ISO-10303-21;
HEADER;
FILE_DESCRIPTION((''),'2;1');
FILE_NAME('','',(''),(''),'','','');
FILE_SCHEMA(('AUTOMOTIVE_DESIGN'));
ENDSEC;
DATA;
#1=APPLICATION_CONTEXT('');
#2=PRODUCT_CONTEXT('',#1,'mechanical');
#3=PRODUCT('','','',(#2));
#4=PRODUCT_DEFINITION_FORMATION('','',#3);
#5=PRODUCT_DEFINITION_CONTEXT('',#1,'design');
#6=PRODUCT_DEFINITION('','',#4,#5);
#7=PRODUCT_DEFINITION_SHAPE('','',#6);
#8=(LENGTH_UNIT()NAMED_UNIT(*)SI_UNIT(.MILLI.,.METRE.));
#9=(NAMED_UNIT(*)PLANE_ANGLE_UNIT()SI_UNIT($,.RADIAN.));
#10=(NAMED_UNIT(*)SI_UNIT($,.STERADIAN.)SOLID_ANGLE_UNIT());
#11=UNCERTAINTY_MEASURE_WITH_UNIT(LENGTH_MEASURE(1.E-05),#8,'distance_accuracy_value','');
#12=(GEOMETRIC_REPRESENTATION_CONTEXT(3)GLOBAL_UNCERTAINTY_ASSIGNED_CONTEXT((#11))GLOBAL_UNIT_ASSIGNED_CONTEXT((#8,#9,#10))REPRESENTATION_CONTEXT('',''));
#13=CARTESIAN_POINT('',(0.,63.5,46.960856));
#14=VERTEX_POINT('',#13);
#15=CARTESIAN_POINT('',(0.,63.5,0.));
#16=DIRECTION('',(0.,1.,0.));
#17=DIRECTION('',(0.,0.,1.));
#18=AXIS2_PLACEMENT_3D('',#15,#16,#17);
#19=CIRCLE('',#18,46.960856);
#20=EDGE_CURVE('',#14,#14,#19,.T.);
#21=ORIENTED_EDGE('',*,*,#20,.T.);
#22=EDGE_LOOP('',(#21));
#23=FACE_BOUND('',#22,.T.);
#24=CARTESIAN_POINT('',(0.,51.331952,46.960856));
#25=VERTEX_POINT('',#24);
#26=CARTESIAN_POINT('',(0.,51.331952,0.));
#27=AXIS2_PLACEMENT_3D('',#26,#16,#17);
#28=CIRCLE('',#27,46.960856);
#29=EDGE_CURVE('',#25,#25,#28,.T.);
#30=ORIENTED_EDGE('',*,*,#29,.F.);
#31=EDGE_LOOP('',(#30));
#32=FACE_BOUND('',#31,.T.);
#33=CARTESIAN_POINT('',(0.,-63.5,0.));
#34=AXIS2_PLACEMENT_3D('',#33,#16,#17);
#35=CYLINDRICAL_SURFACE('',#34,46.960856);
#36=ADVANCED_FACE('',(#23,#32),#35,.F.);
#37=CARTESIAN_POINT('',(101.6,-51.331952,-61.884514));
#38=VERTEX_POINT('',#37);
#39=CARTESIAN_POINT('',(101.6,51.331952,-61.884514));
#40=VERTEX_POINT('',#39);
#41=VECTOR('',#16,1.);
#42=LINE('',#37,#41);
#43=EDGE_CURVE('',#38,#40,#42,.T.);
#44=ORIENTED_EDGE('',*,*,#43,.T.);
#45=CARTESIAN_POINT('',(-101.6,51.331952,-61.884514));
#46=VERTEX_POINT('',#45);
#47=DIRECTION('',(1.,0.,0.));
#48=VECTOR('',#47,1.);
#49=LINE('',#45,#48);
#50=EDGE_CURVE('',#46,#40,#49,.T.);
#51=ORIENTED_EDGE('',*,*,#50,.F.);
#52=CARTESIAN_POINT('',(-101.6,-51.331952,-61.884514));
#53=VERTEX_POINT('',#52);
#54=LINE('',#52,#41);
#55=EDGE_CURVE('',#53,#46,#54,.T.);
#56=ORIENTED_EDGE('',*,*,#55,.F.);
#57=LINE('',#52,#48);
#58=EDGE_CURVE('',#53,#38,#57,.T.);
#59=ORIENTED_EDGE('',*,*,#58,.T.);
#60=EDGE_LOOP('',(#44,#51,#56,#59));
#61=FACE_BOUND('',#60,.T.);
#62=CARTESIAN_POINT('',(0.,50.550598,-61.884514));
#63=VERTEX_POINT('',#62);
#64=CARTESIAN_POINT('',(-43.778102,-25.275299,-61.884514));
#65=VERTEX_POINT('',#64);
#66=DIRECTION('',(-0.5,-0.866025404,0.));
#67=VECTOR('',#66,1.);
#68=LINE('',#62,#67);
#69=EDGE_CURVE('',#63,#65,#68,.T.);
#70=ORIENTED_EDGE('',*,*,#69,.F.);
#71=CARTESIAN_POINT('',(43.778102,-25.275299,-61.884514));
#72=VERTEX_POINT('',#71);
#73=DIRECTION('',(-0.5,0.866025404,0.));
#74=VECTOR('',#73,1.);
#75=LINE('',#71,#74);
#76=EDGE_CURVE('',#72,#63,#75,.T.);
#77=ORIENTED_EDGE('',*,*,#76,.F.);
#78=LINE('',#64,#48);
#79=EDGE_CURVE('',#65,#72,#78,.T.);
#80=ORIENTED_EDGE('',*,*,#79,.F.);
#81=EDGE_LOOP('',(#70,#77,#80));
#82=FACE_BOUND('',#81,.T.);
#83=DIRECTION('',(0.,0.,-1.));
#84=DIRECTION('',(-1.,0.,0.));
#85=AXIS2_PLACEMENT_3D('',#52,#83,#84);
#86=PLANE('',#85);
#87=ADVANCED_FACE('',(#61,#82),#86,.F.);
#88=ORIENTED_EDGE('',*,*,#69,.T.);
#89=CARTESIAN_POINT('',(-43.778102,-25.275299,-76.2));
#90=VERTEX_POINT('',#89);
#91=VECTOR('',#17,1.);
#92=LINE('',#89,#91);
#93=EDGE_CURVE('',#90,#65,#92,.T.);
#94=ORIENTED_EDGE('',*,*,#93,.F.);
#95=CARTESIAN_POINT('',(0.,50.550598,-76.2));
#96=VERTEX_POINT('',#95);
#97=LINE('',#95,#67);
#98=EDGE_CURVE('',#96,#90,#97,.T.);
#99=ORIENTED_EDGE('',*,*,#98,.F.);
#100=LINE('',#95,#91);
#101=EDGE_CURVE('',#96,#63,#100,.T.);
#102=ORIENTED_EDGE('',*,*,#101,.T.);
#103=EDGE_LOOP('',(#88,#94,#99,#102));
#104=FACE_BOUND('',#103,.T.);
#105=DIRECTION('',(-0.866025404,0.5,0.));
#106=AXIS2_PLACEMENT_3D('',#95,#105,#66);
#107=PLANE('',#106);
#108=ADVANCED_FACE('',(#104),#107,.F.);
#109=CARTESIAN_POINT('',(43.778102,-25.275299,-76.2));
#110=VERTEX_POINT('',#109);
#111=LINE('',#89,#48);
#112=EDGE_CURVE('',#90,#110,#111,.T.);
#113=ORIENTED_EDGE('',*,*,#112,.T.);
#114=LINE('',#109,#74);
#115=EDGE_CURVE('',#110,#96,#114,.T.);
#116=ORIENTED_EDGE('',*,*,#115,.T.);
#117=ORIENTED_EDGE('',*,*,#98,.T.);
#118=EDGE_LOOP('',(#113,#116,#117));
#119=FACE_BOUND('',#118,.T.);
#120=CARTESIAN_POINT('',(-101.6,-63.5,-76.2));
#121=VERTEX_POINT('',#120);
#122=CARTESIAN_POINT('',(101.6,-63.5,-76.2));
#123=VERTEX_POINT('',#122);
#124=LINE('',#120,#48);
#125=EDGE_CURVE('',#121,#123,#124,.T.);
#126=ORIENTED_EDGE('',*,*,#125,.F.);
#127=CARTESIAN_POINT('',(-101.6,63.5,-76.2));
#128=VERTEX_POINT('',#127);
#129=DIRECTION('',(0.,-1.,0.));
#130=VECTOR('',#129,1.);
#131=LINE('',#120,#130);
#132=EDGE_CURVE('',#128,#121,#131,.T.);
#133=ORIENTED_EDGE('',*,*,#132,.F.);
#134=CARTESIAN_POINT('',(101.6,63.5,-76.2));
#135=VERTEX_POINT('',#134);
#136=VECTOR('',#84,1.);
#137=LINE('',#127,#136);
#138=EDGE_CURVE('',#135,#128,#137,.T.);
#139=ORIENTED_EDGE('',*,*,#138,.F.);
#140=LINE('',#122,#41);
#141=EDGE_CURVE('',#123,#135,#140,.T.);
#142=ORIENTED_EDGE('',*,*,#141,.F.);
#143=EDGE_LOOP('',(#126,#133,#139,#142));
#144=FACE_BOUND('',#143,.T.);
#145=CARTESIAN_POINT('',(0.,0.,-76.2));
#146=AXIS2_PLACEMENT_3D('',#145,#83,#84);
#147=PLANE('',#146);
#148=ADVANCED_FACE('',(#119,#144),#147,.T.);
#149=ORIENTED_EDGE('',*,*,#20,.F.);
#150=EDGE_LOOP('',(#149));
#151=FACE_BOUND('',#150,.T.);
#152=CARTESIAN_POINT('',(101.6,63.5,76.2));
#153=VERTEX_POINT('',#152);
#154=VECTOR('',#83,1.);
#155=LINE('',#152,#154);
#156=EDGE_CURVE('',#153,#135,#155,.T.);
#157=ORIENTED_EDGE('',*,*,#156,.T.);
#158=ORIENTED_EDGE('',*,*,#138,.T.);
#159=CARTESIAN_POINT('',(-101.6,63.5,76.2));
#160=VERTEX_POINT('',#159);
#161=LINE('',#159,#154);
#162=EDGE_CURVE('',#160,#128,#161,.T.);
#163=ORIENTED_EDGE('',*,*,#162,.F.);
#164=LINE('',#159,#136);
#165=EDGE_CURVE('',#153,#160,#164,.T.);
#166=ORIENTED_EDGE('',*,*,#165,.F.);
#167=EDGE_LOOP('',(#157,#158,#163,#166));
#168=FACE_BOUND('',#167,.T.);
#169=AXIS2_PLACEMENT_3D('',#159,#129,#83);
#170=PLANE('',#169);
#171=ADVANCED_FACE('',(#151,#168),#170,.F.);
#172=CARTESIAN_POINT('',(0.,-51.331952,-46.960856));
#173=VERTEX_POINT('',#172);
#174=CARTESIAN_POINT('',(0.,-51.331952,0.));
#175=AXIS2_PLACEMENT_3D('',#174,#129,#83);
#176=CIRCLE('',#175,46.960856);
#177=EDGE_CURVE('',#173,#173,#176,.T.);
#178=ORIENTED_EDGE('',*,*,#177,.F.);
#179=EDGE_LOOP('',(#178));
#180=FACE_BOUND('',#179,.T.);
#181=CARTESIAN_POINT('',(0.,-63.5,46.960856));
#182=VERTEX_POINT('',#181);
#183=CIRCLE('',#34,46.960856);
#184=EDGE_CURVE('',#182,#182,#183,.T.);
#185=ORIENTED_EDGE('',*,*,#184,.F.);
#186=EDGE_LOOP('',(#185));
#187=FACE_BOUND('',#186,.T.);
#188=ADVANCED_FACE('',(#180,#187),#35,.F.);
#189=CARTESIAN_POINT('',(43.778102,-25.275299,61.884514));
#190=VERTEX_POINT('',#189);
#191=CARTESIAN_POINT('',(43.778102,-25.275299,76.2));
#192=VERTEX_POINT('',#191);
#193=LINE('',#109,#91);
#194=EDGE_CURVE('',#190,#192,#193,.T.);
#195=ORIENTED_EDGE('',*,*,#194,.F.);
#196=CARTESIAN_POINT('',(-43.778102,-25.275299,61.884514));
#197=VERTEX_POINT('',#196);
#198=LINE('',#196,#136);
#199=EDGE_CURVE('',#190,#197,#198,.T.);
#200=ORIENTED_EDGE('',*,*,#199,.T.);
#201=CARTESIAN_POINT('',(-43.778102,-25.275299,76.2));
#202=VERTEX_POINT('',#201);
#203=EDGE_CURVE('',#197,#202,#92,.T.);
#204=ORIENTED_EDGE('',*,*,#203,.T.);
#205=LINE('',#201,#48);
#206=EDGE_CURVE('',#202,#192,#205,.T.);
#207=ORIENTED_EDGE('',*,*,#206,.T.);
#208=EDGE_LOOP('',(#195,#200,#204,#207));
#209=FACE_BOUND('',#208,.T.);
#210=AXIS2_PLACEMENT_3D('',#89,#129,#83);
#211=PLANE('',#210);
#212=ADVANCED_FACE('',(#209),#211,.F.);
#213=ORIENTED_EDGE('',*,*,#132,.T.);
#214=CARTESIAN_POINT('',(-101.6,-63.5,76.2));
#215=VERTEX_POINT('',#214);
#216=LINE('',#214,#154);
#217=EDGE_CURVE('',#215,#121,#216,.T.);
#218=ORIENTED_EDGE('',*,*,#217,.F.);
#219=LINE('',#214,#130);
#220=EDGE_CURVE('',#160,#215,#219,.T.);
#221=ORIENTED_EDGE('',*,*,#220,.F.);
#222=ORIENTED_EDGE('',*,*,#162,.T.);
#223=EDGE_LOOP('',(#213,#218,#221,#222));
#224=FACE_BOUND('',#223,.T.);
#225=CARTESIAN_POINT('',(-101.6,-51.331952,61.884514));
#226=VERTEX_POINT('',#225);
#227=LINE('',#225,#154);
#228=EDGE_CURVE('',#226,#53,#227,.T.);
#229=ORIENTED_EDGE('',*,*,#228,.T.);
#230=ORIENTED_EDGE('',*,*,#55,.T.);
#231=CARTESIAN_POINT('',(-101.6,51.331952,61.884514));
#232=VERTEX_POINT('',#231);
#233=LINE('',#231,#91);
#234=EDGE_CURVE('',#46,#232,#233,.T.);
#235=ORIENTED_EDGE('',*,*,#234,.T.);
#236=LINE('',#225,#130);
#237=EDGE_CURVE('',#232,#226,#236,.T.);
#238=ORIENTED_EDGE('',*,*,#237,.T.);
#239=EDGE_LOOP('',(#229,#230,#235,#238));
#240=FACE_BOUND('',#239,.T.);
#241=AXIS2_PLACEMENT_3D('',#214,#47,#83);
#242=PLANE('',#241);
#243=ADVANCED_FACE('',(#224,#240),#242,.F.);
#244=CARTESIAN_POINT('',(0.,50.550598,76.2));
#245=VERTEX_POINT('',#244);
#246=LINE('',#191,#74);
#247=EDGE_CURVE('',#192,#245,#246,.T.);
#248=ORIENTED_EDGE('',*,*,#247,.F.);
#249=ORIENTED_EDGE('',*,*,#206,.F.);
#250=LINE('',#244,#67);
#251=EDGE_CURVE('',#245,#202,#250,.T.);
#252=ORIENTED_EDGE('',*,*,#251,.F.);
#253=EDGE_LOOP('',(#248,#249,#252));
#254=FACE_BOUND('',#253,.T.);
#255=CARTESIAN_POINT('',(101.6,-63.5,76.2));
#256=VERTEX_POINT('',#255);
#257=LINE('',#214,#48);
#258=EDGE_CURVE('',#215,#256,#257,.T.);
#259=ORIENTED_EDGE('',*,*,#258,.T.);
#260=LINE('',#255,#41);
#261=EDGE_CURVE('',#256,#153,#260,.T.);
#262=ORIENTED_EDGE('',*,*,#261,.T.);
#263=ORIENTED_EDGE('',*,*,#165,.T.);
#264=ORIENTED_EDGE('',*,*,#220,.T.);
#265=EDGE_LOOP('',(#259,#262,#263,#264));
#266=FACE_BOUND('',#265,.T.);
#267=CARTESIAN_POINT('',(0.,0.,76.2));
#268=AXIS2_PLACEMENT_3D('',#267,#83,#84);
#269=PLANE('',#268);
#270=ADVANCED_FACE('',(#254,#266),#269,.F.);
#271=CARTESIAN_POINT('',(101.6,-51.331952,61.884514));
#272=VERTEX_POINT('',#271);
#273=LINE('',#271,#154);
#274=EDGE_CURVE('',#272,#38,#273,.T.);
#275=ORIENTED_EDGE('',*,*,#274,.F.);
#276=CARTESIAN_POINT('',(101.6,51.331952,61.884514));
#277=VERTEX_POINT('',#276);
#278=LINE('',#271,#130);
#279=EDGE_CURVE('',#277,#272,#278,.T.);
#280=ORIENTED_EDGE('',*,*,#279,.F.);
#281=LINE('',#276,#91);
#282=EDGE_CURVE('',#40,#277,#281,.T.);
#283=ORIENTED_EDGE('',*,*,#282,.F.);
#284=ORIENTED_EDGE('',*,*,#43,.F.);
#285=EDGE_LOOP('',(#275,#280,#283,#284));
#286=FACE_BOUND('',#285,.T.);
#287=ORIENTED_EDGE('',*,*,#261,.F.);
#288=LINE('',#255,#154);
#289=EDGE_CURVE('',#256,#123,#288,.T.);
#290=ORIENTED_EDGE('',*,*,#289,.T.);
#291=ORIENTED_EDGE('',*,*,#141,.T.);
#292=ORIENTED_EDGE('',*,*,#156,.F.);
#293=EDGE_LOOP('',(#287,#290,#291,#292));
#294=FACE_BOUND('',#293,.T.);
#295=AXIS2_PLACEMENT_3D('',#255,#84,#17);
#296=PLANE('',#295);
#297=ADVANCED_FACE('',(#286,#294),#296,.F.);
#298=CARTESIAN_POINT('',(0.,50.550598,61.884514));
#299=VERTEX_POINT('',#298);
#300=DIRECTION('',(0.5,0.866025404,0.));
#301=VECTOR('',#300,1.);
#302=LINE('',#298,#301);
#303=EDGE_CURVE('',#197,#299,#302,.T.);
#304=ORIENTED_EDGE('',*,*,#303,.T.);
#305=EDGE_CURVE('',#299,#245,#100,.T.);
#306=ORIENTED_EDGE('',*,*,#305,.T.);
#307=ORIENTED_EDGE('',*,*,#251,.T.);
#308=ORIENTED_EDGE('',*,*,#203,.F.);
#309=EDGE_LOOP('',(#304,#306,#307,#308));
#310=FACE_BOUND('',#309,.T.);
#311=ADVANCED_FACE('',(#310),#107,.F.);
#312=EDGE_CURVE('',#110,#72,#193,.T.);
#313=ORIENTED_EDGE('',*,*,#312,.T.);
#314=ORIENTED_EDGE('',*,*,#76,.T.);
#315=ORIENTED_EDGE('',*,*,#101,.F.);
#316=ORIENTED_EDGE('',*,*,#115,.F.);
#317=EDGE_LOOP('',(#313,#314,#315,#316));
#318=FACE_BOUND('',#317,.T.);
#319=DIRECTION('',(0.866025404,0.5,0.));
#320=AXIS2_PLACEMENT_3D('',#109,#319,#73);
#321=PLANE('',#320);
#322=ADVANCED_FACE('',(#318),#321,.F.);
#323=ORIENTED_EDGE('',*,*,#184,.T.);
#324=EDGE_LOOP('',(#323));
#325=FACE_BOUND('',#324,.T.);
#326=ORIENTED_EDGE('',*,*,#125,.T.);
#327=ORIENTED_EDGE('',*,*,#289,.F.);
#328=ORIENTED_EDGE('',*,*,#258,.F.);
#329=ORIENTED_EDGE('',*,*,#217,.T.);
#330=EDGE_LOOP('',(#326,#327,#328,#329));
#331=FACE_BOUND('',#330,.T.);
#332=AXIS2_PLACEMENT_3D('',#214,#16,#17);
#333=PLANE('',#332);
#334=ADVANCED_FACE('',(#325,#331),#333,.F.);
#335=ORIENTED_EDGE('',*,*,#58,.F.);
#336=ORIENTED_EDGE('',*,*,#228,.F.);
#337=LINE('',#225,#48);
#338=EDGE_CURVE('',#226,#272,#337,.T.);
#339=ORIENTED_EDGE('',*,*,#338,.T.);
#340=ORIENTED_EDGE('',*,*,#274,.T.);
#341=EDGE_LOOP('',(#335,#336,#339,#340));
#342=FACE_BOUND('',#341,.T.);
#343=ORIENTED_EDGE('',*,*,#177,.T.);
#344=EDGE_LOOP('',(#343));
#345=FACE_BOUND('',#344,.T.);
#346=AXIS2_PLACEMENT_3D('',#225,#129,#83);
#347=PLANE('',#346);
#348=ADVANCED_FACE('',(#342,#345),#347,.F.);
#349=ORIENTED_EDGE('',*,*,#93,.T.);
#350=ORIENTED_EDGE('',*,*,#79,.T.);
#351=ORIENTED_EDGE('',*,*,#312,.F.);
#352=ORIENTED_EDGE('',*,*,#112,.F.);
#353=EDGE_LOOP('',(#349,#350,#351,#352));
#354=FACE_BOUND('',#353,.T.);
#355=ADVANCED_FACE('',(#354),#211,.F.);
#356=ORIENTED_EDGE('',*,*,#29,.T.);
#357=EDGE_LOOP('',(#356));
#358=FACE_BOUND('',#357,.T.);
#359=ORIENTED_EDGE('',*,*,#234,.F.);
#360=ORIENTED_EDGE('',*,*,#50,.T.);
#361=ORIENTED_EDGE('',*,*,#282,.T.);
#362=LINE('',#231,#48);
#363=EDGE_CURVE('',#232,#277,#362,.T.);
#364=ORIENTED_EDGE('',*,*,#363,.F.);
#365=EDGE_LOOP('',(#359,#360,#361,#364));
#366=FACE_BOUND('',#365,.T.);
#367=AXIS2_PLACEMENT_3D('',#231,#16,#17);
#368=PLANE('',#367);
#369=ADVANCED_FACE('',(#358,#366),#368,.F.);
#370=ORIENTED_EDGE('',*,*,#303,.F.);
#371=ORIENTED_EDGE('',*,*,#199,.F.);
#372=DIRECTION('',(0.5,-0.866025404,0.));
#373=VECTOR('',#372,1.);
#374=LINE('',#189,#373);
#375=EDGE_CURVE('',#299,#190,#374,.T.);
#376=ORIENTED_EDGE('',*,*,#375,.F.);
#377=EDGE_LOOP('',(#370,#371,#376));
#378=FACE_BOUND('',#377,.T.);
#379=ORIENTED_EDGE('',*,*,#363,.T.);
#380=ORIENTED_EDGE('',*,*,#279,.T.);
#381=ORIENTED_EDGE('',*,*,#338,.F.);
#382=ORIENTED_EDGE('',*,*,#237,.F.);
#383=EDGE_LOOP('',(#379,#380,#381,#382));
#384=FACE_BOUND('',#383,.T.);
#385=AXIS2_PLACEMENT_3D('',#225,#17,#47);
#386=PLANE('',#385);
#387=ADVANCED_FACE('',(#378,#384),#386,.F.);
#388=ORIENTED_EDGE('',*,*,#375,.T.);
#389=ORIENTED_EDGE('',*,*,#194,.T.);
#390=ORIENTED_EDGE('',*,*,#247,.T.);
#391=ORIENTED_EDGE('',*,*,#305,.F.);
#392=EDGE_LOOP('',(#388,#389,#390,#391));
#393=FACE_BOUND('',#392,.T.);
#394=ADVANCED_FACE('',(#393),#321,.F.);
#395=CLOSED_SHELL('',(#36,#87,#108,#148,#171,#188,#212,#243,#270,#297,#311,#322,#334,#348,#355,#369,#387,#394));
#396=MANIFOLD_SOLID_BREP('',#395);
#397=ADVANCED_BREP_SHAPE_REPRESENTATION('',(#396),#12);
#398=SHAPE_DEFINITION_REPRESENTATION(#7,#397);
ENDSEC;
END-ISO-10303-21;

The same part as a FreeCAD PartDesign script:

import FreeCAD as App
import Part
import Sketcher
Q = App.Units.Quantity

doc = App.newDocument("Part")
body = doc.addObject("PartDesign::Body", "Body")

# Sketch on XY plane
sketch1 = body.newObject("Sketcher::SketchObject", "Sketch")
sketch1.AttachmentSupport = (doc.getObject("XY_Plane"), [""])
sketch1.MapMode = "FlatFace"
sketch1.addGeometry(Part.LineSegment(App.Vector(-102, 64, 0), App.Vector(-102, -64, 0)), False)
sketch1.addGeometry(Part.LineSegment(App.Vector(-102, -64, 0), App.Vector(102, -64, 0)), False)
sketch1.addGeometry(Part.LineSegment(App.Vector(102, -64, 0), App.Vector(102, 64, 0)), False)
sketch1.addGeometry(Part.LineSegment(App.Vector(102, 64, 0), App.Vector(-102, 64, 0)), False)
sketch1.addConstraint(Sketcher.Constraint("Coincident", 0, 2, 1, 1))
sketch1.addConstraint(Sketcher.Constraint("Coincident", 1, 2, 2, 1))
sketch1.addConstraint(Sketcher.Constraint("Coincident", 2, 2, 3, 1))
sketch1.addConstraint(Sketcher.Constraint("Coincident", 3, 2, 0, 1))
sketch1.addConstraint(Sketcher.Constraint("Vertical", 0))
sketch1.addConstraint(Sketcher.Constraint("Horizontal", 1))
sketch1.addConstraint(Sketcher.Constraint("Vertical", 2))
sketch1.addConstraint(Sketcher.Constraint("Horizontal", 3))
sketch1.addConstraint(Sketcher.Constraint("Symmetric", 0, 2, 2, 2, -1, 1))
sketch1.addConstraint(Sketcher.Constraint("DistanceX", 1, 1, 1, 2, Q("8 in")))
sketch1.addConstraint(Sketcher.Constraint("DistanceY", 0, 2, 0, 1, Q("5 in")))
pad1 = body.newObject("PartDesign::Pad", "Pad")
pad1.Profile = sketch1
pad1.Length = Q("6 in")
pad1.Midplane = True

# Sketch on XY plane
sketch2 = body.newObject("Sketcher::SketchObject", "Sketch001")
sketch2.AttachmentSupport = (doc.getObject("XY_Plane"), [""])
sketch2.MapMode = "FlatFace"
sketch2.AttachmentOffset = App.Placement(App.Vector(0, 0, 3 * 25.4), App.Rotation())
sketch2.addGeometry(Part.LineSegment(App.Vector(0, 51, 0), App.Vector(-44, -25, 0)), False)
sketch2.addGeometry(Part.LineSegment(App.Vector(-44, -25, 0), App.Vector(44, -25, 0)), False)
sketch2.addGeometry(Part.LineSegment(App.Vector(44, -25, 0), App.Vector(0, 51, 0)), False)
sketch2.addConstraint(Sketcher.Constraint("Coincident", 0, 2, 1, 1))
sketch2.addConstraint(Sketcher.Constraint("Coincident", 1, 2, 2, 1))
sketch2.addConstraint(Sketcher.Constraint("Coincident", 2, 2, 0, 1))
sketch2.addConstraint(Sketcher.Constraint("Horizontal", 1))
sketch2.addConstraint(Sketcher.Constraint("PointOnObject", 2, 2, -2))
sketch2.addConstraint(Sketcher.Constraint("Equal", 0, 2))
sketch2.addConstraint(Sketcher.Constraint("Angle", 0, Q("-120 deg")))
sketch2.addConstraint(Sketcher.Constraint("DistanceY", 0, 2, -1, 1, 25.275299))
sketch2.addConstraint(Sketcher.Constraint("DistanceY", -1, 1, 2, 2, 50.550598))
pocket1 = body.newObject("PartDesign::Pocket", "Pocket")
pocket1.Profile = sketch2
pocket1.Type = "ThroughAll"

# Sketch on YZ plane
sketch3 = body.newObject("Sketcher::SketchObject", "Sketch002")
sketch3.AttachmentSupport = (doc.getObject("YZ_Plane"), [""])
sketch3.MapMode = "FlatFace"
sketch3.AttachmentOffset = App.Placement(App.Vector(0, 0, 4 * 25.4), App.Rotation())
sketch3.addGeometry(Part.LineSegment(App.Vector(51, 62, 0), App.Vector(-51, 62, 0)), False)
sketch3.addGeometry(Part.LineSegment(App.Vector(-51, 62, 0), App.Vector(-51, -62, 0)), False)
sketch3.addGeometry(Part.LineSegment(App.Vector(-51, -62, 0), App.Vector(51, -62, 0)), False)
sketch3.addGeometry(Part.LineSegment(App.Vector(51, -62, 0), App.Vector(51, 62, 0)), False)
sketch3.addConstraint(Sketcher.Constraint("Coincident", 0, 2, 1, 1))
sketch3.addConstraint(Sketcher.Constraint("Coincident", 1, 2, 2, 1))
sketch3.addConstraint(Sketcher.Constraint("Coincident", 2, 2, 3, 1))
sketch3.addConstraint(Sketcher.Constraint("Coincident", 3, 2, 0, 1))
sketch3.addConstraint(Sketcher.Constraint("Horizontal", 0))
sketch3.addConstraint(Sketcher.Constraint("Vertical", 1))
sketch3.addConstraint(Sketcher.Constraint("Horizontal", 2))
sketch3.addConstraint(Sketcher.Constraint("Vertical", 3))
sketch3.addConstraint(Sketcher.Constraint("Symmetric", 0, 2, 2, 2, -1, 1))
sketch3.addConstraint(Sketcher.Constraint("DistanceX", 0, 2, 0, 1, 102.663904))
sketch3.addConstraint(Sketcher.Constraint("DistanceY", 1, 2, 1, 1, 123.769028))
pocket2 = body.newObject("PartDesign::Pocket", "Pocket001")
pocket2.Profile = sketch3
pocket2.Type = "ThroughAll"

# Sketch on XZ plane
sketch4 = body.newObject("Sketcher::SketchObject", "Sketch003")
sketch4.AttachmentSupport = (doc.getObject("XZ_Plane"), [""])
sketch4.MapMode = "FlatFace"
sketch4.AttachmentOffset = App.Placement(App.Vector(0, 0, -2.5 * 25.4), App.Rotation())
sketch4.addGeometry(Part.Circle(App.Vector(0, 0, 0), App.Vector(0, 0, 1), 47), False)
sketch4.addConstraint(Sketcher.Constraint("Coincident", 0, 3, -1, 1))
sketch4.addConstraint(Sketcher.Constraint("Diameter", 0, 93.921712))
pocket3 = body.newObject("PartDesign::Pocket", "Pocket002")
pocket3.Profile = sketch4
pocket3.Type = "ThroughAll"
pocket3.Reversed = True

doc.recompute()
